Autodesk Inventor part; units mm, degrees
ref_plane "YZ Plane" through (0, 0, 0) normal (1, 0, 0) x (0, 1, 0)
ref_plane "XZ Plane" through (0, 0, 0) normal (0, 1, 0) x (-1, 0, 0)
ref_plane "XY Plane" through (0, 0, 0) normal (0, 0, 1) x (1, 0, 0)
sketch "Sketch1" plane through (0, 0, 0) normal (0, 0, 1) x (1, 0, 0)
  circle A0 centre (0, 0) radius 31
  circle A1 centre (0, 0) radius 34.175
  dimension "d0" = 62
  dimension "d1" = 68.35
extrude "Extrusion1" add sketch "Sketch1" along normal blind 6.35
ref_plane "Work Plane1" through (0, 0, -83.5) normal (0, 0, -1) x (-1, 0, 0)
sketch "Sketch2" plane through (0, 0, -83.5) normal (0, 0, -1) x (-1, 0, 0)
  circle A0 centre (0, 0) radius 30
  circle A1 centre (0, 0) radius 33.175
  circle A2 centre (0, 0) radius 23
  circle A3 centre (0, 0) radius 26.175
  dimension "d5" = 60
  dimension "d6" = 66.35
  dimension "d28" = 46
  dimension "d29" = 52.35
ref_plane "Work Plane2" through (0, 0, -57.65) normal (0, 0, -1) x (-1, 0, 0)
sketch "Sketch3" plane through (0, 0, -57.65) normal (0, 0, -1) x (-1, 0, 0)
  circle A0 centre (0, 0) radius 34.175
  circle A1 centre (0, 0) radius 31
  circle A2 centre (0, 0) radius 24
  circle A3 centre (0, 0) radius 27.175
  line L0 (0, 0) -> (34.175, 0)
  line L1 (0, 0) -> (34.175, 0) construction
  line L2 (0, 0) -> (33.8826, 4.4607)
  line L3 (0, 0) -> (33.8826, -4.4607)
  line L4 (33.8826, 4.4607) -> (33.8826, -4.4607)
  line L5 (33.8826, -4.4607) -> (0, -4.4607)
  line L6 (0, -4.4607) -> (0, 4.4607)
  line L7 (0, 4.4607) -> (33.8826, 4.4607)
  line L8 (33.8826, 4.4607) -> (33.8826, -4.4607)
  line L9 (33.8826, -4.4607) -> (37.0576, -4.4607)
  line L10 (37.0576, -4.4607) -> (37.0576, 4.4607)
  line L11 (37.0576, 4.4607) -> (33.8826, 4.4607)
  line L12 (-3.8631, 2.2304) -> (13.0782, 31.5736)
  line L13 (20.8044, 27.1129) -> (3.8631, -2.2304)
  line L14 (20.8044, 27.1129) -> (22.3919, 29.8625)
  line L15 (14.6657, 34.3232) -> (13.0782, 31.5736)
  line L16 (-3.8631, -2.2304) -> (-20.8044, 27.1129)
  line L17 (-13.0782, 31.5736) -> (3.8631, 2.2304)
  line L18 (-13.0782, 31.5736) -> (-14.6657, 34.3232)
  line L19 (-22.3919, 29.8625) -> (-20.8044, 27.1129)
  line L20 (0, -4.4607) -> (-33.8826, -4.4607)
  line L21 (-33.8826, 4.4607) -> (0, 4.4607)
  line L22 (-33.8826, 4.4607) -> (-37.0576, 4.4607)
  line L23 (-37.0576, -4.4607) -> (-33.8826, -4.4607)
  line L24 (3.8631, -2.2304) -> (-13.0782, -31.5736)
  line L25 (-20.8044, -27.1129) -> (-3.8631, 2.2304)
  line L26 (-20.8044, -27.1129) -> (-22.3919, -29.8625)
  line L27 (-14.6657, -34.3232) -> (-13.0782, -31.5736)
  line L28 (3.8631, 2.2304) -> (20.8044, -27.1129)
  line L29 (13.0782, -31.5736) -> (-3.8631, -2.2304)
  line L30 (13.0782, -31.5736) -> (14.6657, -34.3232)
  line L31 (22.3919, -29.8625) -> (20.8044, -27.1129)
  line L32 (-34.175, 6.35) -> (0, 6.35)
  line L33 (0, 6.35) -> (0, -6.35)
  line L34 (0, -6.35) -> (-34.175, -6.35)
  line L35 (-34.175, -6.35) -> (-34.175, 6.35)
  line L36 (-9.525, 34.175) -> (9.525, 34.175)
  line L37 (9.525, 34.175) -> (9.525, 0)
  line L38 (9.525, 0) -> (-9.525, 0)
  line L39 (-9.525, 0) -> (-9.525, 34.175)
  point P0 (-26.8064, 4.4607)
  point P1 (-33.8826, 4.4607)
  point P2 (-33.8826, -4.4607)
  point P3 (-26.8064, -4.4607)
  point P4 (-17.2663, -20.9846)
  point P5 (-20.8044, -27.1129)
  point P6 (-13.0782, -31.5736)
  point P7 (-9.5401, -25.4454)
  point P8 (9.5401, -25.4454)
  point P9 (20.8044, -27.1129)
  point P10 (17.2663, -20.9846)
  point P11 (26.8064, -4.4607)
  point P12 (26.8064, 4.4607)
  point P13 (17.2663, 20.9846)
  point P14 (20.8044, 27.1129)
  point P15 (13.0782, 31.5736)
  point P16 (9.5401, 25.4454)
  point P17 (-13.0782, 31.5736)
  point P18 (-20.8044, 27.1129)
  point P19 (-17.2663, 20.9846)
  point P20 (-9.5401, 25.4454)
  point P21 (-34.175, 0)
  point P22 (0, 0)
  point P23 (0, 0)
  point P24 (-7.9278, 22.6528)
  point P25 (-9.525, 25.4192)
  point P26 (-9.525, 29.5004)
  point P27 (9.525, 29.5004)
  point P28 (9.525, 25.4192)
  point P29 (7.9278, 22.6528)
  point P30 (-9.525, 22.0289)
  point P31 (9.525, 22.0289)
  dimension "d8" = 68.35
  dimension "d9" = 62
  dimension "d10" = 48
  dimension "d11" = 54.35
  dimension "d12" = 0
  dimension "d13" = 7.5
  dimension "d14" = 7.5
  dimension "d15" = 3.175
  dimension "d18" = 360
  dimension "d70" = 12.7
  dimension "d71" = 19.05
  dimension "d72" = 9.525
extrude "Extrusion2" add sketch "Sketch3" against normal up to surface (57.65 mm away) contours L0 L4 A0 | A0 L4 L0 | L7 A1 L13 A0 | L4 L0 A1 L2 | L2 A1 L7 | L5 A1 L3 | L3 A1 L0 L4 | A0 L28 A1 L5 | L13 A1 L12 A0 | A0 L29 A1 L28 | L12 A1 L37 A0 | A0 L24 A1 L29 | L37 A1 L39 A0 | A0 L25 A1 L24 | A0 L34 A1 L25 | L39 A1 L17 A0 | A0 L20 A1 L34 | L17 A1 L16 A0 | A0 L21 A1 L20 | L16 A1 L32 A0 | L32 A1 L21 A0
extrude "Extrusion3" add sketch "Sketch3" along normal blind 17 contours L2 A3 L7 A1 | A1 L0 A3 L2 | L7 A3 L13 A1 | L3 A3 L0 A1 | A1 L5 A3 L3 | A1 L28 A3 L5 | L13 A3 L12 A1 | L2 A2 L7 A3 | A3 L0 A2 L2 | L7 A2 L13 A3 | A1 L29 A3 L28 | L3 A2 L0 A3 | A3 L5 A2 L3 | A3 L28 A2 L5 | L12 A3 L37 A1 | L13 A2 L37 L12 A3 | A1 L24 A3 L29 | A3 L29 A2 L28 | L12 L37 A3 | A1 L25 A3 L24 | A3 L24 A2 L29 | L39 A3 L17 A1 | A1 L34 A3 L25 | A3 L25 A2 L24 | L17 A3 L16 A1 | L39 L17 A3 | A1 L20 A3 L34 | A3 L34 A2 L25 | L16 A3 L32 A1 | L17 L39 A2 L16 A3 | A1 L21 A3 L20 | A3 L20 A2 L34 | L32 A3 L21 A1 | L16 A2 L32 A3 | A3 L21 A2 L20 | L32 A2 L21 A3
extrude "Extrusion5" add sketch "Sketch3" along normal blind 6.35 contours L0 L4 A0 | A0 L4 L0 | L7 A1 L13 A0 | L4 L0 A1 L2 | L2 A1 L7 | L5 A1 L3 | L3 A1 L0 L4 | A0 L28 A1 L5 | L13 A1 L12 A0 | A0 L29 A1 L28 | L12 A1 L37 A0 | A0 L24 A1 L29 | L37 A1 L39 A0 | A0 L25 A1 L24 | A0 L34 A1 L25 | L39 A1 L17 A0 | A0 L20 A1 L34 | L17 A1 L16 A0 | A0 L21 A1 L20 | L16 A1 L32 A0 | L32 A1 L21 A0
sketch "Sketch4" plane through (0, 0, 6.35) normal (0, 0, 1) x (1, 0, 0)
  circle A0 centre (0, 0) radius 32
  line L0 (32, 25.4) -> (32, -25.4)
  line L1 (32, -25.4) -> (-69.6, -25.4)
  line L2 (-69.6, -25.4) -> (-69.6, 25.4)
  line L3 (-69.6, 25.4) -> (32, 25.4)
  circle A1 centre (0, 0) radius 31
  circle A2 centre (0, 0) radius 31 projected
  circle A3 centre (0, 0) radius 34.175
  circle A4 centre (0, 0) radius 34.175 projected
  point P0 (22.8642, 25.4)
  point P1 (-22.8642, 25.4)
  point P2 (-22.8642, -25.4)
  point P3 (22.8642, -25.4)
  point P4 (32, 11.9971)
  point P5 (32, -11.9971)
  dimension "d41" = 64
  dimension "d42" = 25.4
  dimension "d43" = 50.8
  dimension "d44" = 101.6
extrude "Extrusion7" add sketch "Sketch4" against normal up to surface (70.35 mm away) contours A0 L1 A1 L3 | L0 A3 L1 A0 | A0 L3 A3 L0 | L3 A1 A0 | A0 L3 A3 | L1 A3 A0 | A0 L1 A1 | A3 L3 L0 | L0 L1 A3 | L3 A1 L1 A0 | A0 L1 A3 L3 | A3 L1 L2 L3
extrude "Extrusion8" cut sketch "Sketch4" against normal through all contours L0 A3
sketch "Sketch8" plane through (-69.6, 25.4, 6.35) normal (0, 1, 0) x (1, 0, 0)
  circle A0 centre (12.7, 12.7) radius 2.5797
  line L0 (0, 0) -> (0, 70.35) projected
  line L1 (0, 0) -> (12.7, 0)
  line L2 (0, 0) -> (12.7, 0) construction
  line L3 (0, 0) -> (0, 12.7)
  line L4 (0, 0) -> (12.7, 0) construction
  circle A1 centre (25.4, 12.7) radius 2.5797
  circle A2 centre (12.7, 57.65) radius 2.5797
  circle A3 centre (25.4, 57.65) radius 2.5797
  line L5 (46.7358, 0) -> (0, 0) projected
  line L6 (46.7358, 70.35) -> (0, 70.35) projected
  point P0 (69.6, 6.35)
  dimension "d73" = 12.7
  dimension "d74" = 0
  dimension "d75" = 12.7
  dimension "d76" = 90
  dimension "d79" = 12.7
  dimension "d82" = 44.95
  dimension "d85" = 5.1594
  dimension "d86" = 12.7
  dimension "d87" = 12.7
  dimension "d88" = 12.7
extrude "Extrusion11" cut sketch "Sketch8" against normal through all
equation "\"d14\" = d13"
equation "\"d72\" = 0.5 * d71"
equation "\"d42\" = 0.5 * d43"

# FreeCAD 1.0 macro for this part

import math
import FreeCAD as App
import Part
import Sketcher
Q = App.Units.Quantity

doc = App.newDocument("Part")
body = doc.addObject("PartDesign::Body", "Body")
body.AllowCompound = True

# Sketch on XY plane
sketch1 = doc.addObject("Sketcher::SketchObject", "Sketch")
body.addObject(sketch1)
sketch1.AttachmentSupport = (doc.XY_Plane, [""])
sketch1.MapMode = "FlatFace"
sketch1.addGeometry(Part.Circle(App.Vector(0, 0, 0), App.Vector(0, 0, 1), 34), False)
sketch1.addGeometry(Part.Circle(App.Vector(0, 0, 0), App.Vector(0, 0, 1), 31), False)
sketch1.addConstraint(Sketcher.Constraint("Coincident", 0, 3, -1, 1))
sketch1.addConstraint(Sketcher.Constraint("Coincident", 1, 3, -1, 1))
sketch1.addConstraint(Sketcher.Constraint("Diameter", 0, Q("68.35 mm")))
sketch1.addConstraint(Sketcher.Constraint("Diameter", 1, Q("62 mm")))
pad1 = doc.addObject("PartDesign::Pad", "Pad")
body.addObject(pad1)
pad1.Profile = sketch1
pad1.Length = Q("0.25 in")

# Sketch on XY plane
sketch2 = doc.addObject("Sketcher::SketchObject", "Sketch001")
body.addObject(sketch2)
sketch2.AttachmentSupport = (doc.XY_Plane, [""])
sketch2.MapMode = "FlatFace"
sketch2.AttachmentOffset = App.Placement(App.Vector(0, 0, -57.65), App.Rotation())
sketch2.addGeometry(Part.Circle(App.Vector(0, 0, 0), App.Vector(0, 0, 1), 34), False)
sketch2.addGeometry(Part.Circle(App.Vector(0, 0, 0), App.Vector(0, 0, 1), 31), False)
sketch2.addConstraint(Sketcher.Constraint("Coincident", 0, 3, -1, 1))
sketch2.addConstraint(Sketcher.Constraint("Coincident", 1, 3, -1, 1))
sketch2.addConstraint(Sketcher.Constraint("Diameter", 0, Q("68.35 mm")))
sketch2.addConstraint(Sketcher.Constraint("Diameter", 1, Q("62 mm")))
pad2 = doc.addObject("PartDesign::Pad", "Pad001")
body.addObject(pad2)
pad2.Profile = sketch2
pad2.Length = 57.65

# Sketch on XY plane
sketch3 = doc.addObject("Sketcher::SketchObject", "Sketch002")
body.addObject(sketch3)
sketch3.AttachmentSupport = (doc.XY_Plane, [""])
sketch3.MapMode = "FlatFace"
sketch3.AttachmentOffset = App.Placement(App.Vector(0, 0, -57.65), App.Rotation())
sketch3.addGeometry(Part.LineSegment(App.Vector(-10, 30, 0), App.Vector(-10, 22, 0)), False)
sketch3.addGeometry(Part.ArcOfCircle(Part.Circle(App.Vector(0, 0, 0), App.Vector(0, 0, 1), 24), math.radians(113), math.radians(427)), False)
sketch3.addGeometry(Part.LineSegment(App.Vector(10, 22, 0), App.Vector(10, 30, 0)), False)
sketch3.addGeometry(Part.ArcOfCircle(Part.Circle(App.Vector(0, 0, 0), App.Vector(0, 0, 1), 31), math.radians(108), math.radians(432)), False)
sketch3.addConstraint(Sketcher.Constraint("Coincident", 0, 2, 1, 1))
sketch3.addConstraint(Sketcher.Constraint("Coincident", 1, 2, 2, 1))
sketch3.addConstraint(Sketcher.Constraint("Coincident", 2, 2, 3, 2))
sketch3.addConstraint(Sketcher.Constraint("Coincident", 3, 1, 0, 1))
sketch3.addConstraint(Sketcher.Constraint("Vertical", 0))
sketch3.addConstraint(Sketcher.Constraint("Vertical", 2))
sketch3.addConstraint(Sketcher.Constraint("Coincident", 1, 3, -1, 1))
sketch3.addConstraint(Sketcher.Constraint("Coincident", 3, 3, -1, 1))
sketch3.addConstraint(Sketcher.Constraint("Horizontal", 0, 2, 1, 2))
sketch3.addConstraint(Sketcher.Constraint("Radius", 1, Q("24 mm")))
sketch3.addConstraint(Sketcher.Constraint("Radius", 3, Q("31 mm")))
sketch3.addConstraint(Sketcher.Constraint("DistanceX", 0, 2, 1, 2, Q("0.75 in")))
pad3 = doc.addObject("PartDesign::Pad", "Pad002")
body.addObject(pad3)
pad3.Profile = sketch3
pad3.Length = Q("0.6692913 in")
pad3.Reversed = True

# Sketch on XY plane
sketch4 = doc.addObject("Sketcher::SketchObject", "Sketch003")
body.addObject(sketch4)
sketch4.AttachmentSupport = (doc.XY_Plane, [""])
sketch4.MapMode = "FlatFace"
sketch4.AttachmentOffset = App.Placement(App.Vector(0, 0, -57.65), App.Rotation())
sketch4.addGeometry(Part.Circle(App.Vector(0, 0, 0), App.Vector(0, 0, 1), 34), False)
sketch4.addGeometry(Part.Circle(App.Vector(0, 0, 0), App.Vector(0, 0, 1), 31), False)
sketch4.addConstraint(Sketcher.Constraint("Coincident", 0, 3, -1, 1))
sketch4.addConstraint(Sketcher.Constraint("Coincident", 1, 3, -1, 1))
sketch4.addConstraint(Sketcher.Constraint("Diameter", 0, Q("68.35 mm")))
sketch4.addConstraint(Sketcher.Constraint("Diameter", 1, Q("62 mm")))
pad4 = doc.addObject("PartDesign::Pad", "Pad003")
body.addObject(pad4)
pad4.Profile = sketch4
pad4.Length = Q("0.25 in")
pad4.Reversed = True

# Sketch on XY plane
sketch5 = doc.addObject("Sketcher::SketchObject", "Sketch004")
body.addObject(sketch5)
sketch5.AttachmentSupport = (doc.XY_Plane, [""])
sketch5.MapMode = "FlatFace"
sketch5.AttachmentOffset = App.Placement(App.Vector(0, 0, 0.25 * 25.4), App.Rotation())
sketch5.addGeometry(Part.LineSegment(App.Vector(32, 25, 0), App.Vector(23, 25, 0)), False)
sketch5.addGeometry(Part.ArcOfCircle(Part.Circle(App.Vector(0, 0, 0), App.Vector(0, 0, 1), 34), math.radians(48), math.radians(132)), False)
sketch5.addGeometry(Part.LineSegment(App.Vector(-23, 25, 0), App.Vector(-70, 25, 0)), False)
sketch5.addGeometry(Part.LineSegment(App.Vector(-70, 25, 0), App.Vector(-70, -25, 0)), False)
sketch5.addGeometry(Part.LineSegment(App.Vector(-70, -25, 0), App.Vector(-23, -25, 0)), False)
sketch5.addGeometry(Part.ArcOfCircle(Part.Circle(App.Vector(0, 0, 0), App.Vector(0, 0, 1), 34), math.radians(-132), math.radians(-48)), False)
sketch5.addGeometry(Part.LineSegment(App.Vector(23, -25, 0), App.Vector(32, -25, 0)), False)
sketch5.addGeometry(Part.LineSegment(App.Vector(32, -25, 0), App.Vector(32, 25, 0)), False)
sketch5.addGeometry(Part.Circle(App.Vector(0, 0, 0), App.Vector(0, 0, 1), 31), False)
sketch5.addConstraint(Sketcher.Constraint("Coincident", 0, 2, 1, 1))
sketch5.addConstraint(Sketcher.Constraint("Coincident", 1, 2, 2, 1))
sketch5.addConstraint(Sketcher.Constraint("Coincident", 2, 2, 3, 1))
sketch5.addConstraint(Sketcher.Constraint("Coincident", 3, 2, 4, 1))
sketch5.addConstraint(Sketcher.Constraint("Coincident", 4, 2, 5, 1))
sketch5.addConstraint(Sketcher.Constraint("Coincident", 5, 2, 6, 1))
sketch5.addConstraint(Sketcher.Constraint("Coincident", 6, 2, 7, 1))
sketch5.addConstraint(Sketcher.Constraint("Coincident", 7, 2, 0, 1))
sketch5.addConstraint(Sketcher.Constraint("Horizontal", 0))
sketch5.addConstraint(Sketcher.Constraint("Horizontal", 2))
sketch5.addConstraint(Sketcher.Constraint("Vertical", 3))
sketch5.addConstraint(Sketcher.Constraint("Horizontal", 4))
sketch5.addConstraint(Sketcher.Constraint("Horizontal", 6))
sketch5.addConstraint(Sketcher.Constraint("Vertical", 7))
sketch5.addConstraint(Sketcher.Constraint("Coincident", 1, 3, -1, 1))
sketch5.addConstraint(Sketcher.Constraint("Coincident", 5, 3, -1, 1))
sketch5.addConstraint(Sketcher.Constraint("Coincident", 8, 3, -1, 1))
sketch5.addConstraint(Sketcher.Constraint("Equal", 1, 5))
sketch5.addConstraint(Sketcher.Constraint("Horizontal", 0, 2, 1, 2))
sketch5.addConstraint(Sketcher.Constraint("Horizontal", 4, 2, 5, 2))
sketch5.addConstraint(Sketcher.Constraint("Vertical", 1, 2, 4, 2))
sketch5.addConstraint(Sketcher.Constraint("DistanceY", 3, 2, 3, 1, Q("2 in")))
sketch5.addConstraint(Sketcher.Constraint("DistanceX", 2, 2, 2, 1, Q("1.84 in")))
sketch5.addConstraint(Sketcher.Constraint("Diameter", 8, Q("62 mm")))
sketch5.addConstraint(Sketcher.Constraint("Radius", 1, Q("34.175 mm")))
sketch5.addConstraint(Sketcher.Constraint("DistanceX", 0, 2, 0, 1, Q("9.1358 mm")))
pad5 = doc.addObject("PartDesign::Pad", "Pad004")
body.addObject(pad5)
pad5.Profile = sketch5
pad5.Length = 70.35
pad5.Reversed = True

# Sketch on XY plane
sketch6 = doc.addObject("Sketcher::SketchObject", "Sketch005")
body.addObject(sketch6)
sketch6.AttachmentSupport = (doc.XY_Plane, [""])
sketch6.MapMode = "FlatFace"
sketch6.AttachmentOffset = App.Placement(App.Vector(0, 0, 0.25 * 25.4), App.Rotation())
sketch6.addGeometry(Part.LineSegment(App.Vector(32, 12, 0), App.Vector(32, -12, 0)), False)
sketch6.addGeometry(Part.ArcOfCircle(Part.Circle(App.Vector(0, 0, 0), App.Vector(0, 0, 1), 34), math.radians(-21), math.radians(21)), False)
sketch6.addConstraint(Sketcher.Constraint("Coincident", 0, 1, 1, 2))
sketch6.addConstraint(Sketcher.Constraint("Coincident", 1, 1, 0, 2))
sketch6.addConstraint(Sketcher.Constraint("Vertical", 0))
sketch6.addConstraint(Sketcher.Constraint("Coincident", 1, 3, -1, 1))
sketch6.addConstraint(Sketcher.Constraint("Radius", 1, Q("34.175 mm")))
sketch6.addConstraint(Sketcher.Constraint("DistanceY", 0, 2, 0, 1, Q("23.9942 mm")))
pocket1 = doc.addObject("PartDesign::Pocket", "Pocket")
body.addObject(pocket1)
pocket1.Profile = sketch6
pocket1.Type = "ThroughAll"

# Sketch on XZ plane
sketch7 = doc.addObject("Sketcher::SketchObject", "Sketch006")
body.addObject(sketch7)
sketch7.AttachmentSupport = (doc.XZ_Plane, [""])
sketch7.MapMode = "FlatFace"
sketch7.AttachmentOffset = App.Placement(App.Vector(0, 0, -1 * 25.4), App.Rotation())
sketch7.addGeometry(Part.Circle(App.Vector(-56.9, -6.3, 0), App.Vector(0, 0, 1), 2.6), False)
sketch7.addGeometry(Part.Circle(App.Vector(-44.2, -6.3, 0), App.Vector(0, 0, 1), 2.6), False)
sketch7.addGeometry(Part.Circle(App.Vector(-56.9, -51.3, 0), App.Vector(0, 0, 1), 2.6), False)
sketch7.addGeometry(Part.Circle(App.Vector(-44.2, -51.3, 0), App.Vector(0, 0, 1), 2.6), False)
sketch7.addConstraint(Sketcher.Constraint("Equal", 0, 1))
sketch7.addConstraint(Sketcher.Constraint("Equal", 1, 2))
sketch7.addConstraint(Sketcher.Constraint("Equal", 2, 3))
sketch7.addConstraint(Sketcher.Constraint("Horizontal", 0, 3, 1, 3))
sketch7.addConstraint(Sketcher.Constraint("Horizontal", 2, 3, 3, 3))
sketch7.addConstraint(Sketcher.Constraint("Vertical", 0, 3, 2, 3))
sketch7.addConstraint(Sketcher.Constraint("Vertical", 1, 3, 3, 3))
sketch7.addConstraint(Sketcher.Constraint("Diameter", 0, Q("0.203126 in")))
sketch7.addConstraint(Sketcher.Constraint("DistanceX", 0, 3, 1, 3, Q("0.5 in")))
sketch7.addConstraint(Sketcher.Constraint("DistanceY", 0, 3, -1, 1, Q("0.25 in")))
sketch7.addConstraint(Sketcher.Constraint("DistanceY", 2, 3, 0, 3, Q("44.95 mm")))
sketch7.addConstraint(Sketcher.Constraint("DistanceX", 0, 3, -1, 1, Q("56.9 mm")))
pocket2 = doc.addObject("PartDesign::Pocket", "Pocket001")
body.addObject(pocket2)
pocket2.Profile = sketch7
pocket2.Type = "ThroughAll"
pocket2.Reversed = True

doc.recompute()
